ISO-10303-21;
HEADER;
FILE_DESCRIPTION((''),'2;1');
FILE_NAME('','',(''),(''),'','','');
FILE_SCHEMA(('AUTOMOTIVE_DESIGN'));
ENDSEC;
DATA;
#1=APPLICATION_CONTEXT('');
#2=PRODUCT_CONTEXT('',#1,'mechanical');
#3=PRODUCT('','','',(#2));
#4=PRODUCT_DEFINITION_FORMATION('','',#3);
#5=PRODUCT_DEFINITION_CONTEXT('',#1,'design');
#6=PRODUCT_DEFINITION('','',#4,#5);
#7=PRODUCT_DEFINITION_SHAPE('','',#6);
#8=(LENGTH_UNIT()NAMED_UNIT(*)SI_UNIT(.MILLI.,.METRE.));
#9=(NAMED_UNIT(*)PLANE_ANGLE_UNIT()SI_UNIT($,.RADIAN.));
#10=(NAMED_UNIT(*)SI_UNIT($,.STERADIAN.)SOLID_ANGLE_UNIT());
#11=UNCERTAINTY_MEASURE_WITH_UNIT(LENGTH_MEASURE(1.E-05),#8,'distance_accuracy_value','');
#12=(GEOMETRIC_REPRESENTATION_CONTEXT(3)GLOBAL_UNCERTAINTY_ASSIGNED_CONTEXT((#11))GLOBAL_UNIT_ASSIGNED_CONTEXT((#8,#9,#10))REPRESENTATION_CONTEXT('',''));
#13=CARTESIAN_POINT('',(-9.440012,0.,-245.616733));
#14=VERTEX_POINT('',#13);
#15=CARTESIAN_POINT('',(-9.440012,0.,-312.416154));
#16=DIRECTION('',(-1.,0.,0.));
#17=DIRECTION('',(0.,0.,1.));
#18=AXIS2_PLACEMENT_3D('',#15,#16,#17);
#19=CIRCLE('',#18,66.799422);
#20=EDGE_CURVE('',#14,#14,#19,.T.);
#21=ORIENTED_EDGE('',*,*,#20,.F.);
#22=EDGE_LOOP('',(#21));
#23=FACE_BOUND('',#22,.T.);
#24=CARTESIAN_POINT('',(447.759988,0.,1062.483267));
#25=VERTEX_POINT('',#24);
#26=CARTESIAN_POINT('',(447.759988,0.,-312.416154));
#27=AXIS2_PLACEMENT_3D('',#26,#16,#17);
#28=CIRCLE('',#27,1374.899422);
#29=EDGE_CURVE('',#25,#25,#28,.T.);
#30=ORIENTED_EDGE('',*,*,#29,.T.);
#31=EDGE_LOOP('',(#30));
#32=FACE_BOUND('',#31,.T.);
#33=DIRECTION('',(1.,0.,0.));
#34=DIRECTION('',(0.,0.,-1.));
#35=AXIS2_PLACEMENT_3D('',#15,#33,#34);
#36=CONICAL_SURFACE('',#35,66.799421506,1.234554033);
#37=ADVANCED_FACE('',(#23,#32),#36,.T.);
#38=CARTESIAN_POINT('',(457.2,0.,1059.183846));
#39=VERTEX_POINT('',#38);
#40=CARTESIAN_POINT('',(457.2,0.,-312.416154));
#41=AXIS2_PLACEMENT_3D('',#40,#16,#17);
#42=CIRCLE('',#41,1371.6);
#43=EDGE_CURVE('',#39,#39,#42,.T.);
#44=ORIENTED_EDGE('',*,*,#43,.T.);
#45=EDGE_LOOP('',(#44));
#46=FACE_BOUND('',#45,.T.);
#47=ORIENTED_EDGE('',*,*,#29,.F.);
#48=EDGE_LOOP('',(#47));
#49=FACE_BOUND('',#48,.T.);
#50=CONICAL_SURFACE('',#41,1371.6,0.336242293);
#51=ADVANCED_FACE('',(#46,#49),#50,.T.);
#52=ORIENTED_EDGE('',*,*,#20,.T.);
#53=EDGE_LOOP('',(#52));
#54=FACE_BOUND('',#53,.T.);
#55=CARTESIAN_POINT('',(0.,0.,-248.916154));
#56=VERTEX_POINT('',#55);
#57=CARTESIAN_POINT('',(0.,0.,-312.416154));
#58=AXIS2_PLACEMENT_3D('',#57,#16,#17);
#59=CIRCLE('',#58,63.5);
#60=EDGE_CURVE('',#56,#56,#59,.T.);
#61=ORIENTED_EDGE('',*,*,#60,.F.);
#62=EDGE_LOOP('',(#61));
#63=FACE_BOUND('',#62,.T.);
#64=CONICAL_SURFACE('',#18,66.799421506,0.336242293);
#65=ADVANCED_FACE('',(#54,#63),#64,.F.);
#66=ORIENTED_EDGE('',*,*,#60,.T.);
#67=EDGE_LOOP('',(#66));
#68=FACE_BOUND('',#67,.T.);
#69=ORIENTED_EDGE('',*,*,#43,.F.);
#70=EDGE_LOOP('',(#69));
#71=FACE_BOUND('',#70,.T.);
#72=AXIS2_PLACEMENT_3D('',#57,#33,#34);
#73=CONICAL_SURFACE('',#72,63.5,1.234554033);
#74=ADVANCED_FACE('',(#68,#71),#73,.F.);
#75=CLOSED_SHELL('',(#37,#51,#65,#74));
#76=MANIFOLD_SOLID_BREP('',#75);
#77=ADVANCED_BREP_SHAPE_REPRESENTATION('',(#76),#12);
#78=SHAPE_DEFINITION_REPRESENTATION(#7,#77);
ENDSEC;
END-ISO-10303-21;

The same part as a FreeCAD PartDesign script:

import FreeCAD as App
import Part
import Sketcher

V = App.Vector
Q = App.Units.Quantity


def add_polygon(sketch, points):
    """Adds a closed chain of lines whose ends are joined by coincident constraints."""
    first, n = sketch.GeometryCount, len(points)
    for a, b in zip(points, points[1:] + points[:1]):
        sketch.addGeometry(Part.LineSegment(App.Vector(*a, 0), App.Vector(*b, 0)), False)
    for i in range(n):
        sketch.addConstraint(Sketcher.Constraint("Coincident", first + i, 2, first + (i + 1) % n, 1))

doc = App.newDocument("Part")
body = doc.addObject("PartDesign::Body", "Body")

# Sketch on XZ plane
sketch1 = body.newObject("Sketcher::SketchObject", "Sketch")
sketch1.AttachmentSupport = (doc.getObject("XZ_Plane"), [""])
sketch1.MapMode = "FlatFace"
add_polygon(sketch1, [(457.2, 1059.183846), (0, -248.916154), (-9.440012, -245.616733), (447.759988, 1062.483267)])  # lines 0-3
sketch1.addGeometry(Part.LineSegment(V(-9.440012, -312.416154, 0), V(457.2, -312.416154, 0)), True)  # axis
sketch1.addConstraint([
    Sketcher.Constraint("Horizontal", 4),
    Sketcher.Constraint("PointOnObject", 0, 2, -2),
    Sketcher.Constraint("Perpendicular", 0, 1),
    Sketcher.Constraint("Perpendicular", 1, 2),
    Sketcher.Constraint("Perpendicular", 2, 3),
    Sketcher.Constraint("Vertical", 1, 2, 4, 1),
    Sketcher.Constraint("Vertical", 3, 2, 4, 2),
    Sketcher.Constraint("Distance", 1, Q("10 mm")),
    Sketcher.Constraint("DistanceX", -1, 1, 3, 2, Q("457.2 mm")),
    Sketcher.Constraint("DistanceY", 1, 2, 2, 2, Q("1308.1 mm")),
    Sketcher.Constraint("DistanceY", 4, 1, 0, 2, Q("63.5 mm")),
    Sketcher.Constraint("DistanceY", 0, 2, -1, 1, Q("248.916154 mm")),
])
revolution = body.newObject("PartDesign::Revolution", "Revolution")
revolution.Profile = sketch1
revolution.ReferenceAxis = (sketch1, ["Axis0"])
revolution.Angle = 360

doc.recompute()
